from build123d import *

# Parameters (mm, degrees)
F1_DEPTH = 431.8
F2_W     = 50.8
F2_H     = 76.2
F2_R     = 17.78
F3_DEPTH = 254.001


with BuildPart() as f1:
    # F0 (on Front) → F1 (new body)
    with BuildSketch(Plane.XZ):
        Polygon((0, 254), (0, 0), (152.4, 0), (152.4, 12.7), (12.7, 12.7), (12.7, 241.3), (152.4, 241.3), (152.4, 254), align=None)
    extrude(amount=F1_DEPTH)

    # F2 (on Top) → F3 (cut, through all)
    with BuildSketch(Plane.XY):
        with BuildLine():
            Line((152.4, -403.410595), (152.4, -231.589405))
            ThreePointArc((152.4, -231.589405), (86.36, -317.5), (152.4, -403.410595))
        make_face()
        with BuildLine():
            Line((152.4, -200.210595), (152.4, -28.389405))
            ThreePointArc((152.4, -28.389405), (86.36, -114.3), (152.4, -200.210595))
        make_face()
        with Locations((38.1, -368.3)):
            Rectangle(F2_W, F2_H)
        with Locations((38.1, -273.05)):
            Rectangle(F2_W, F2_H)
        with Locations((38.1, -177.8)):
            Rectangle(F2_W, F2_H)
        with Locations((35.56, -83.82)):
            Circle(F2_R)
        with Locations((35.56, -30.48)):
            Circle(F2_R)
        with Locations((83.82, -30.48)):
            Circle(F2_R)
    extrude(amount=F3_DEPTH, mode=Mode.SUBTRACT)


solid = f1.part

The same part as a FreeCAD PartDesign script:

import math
import FreeCAD as App
import Part
import Sketcher
from FreeCAD import Vector
Q = App.Units.Quantity


def add_polygon(sketch, points):
    """Adds a closed chain of lines whose ends are joined by coincident constraints."""
    first, n = sketch.GeometryCount, len(points)
    for a, b in zip(points, points[1:] + points[:1]):
        sketch.addGeometry(Part.LineSegment(App.Vector(*a, 0), App.Vector(*b, 0)), False)
    for i in range(n):
        sketch.addConstraint(Sketcher.Constraint("Coincident", first + i, 2, first + (i + 1) % n, 1))

doc = App.newDocument("Part")
body = doc.addObject("PartDesign::Body", "Body")

sketch1 = doc.addObject("Sketcher::SketchObject", "Sketch")
body.addObject(sketch1)
sketch1.AttachmentSupport = (doc.XZ_Plane, [""])
sketch1.MapMode = "FlatFace"
add_polygon(sketch1, [(0, 254), (0, 0), (152.4, 0), (152.4, 12.7), (12.7, 12.7), (12.7, 241.3), (152.4, 241.3), (152.4, 254)])
sketch1.addConstraint(Sketcher.Constraint("Vertical", 0))
sketch1.addConstraint(Sketcher.Constraint("Horizontal", 1))
sketch1.addConstraint(Sketcher.Constraint("Vertical", 2))
sketch1.addConstraint(Sketcher.Constraint("Horizontal", 3))
sketch1.addConstraint(Sketcher.Constraint("Vertical", 4))
sketch1.addConstraint(Sketcher.Constraint("Horizontal", 5))
sketch1.addConstraint(Sketcher.Constraint("Vertical", 6))
sketch1.addConstraint(Sketcher.Constraint("Horizontal", 7))
sketch1.addConstraint(Sketcher.Constraint("Coincident", 0, 2, -1, 1))
sketch1.addConstraint(Sketcher.Constraint("Vertical", 2, 2, 5, 2))
sketch1.addConstraint(Sketcher.Constraint("Equal", 2, 6))
sketch1.addConstraint(Sketcher.Constraint("DistanceX", 1, 1, 1, 2, Q("6 in")))
sketch1.addConstraint(Sketcher.Constraint("DistanceY", 0, 2, 0, 1, Q("10 in")))
sketch1.addConstraint(Sketcher.Constraint("DistanceY", 4, 1, 4, 2, Q("9 in")))
sketch1.addConstraint(Sketcher.Constraint("DistanceX", 3, 2, 3, 1, Q("5.5 in")))
pad1 = doc.addObject("PartDesign::Pad", "Pad")
body.addObject(pad1)
pad1.Profile = sketch1
pad1.Length = Q("17 in")

sketch2 = doc.addObject("Sketcher::SketchObject", "Sketch001")
body.addObject(sketch2)
sketch2.AttachmentSupport = (doc.XY_Plane, [""])
sketch2.MapMode = "FlatFace"
sketch2.addGeometry(Part.LineSegment(Vector(152.4, -403.410595, 0), Vector(152.4, -231.589405, 0)), False)
sketch2.addGeometry(Part.ArcOfCircle(Part.Circle(Vector(175.259999, -317.5, 0), Vector(0, 0, 1), 88.899999), math.radians(104.900596), math.radians(255.099404)), False)
sketch2.addGeometry(Part.LineSegment(Vector(152.4, -200.210595, 0), Vector(152.4, -28.389405, 0)), False)
sketch2.addGeometry(Part.ArcOfCircle(Part.Circle(Vector(175.259999, -114.3, 0), Vector(0, 0, 1), 88.899999), math.radians(104.900596), math.radians(255.099404)), False)
add_polygon(sketch2, [(12.7, -330.2), (12.7, -406.4), (63.5, -406.4), (63.5, -330.2)])
add_polygon(sketch2, [(12.7, -234.95), (12.7, -311.15), (63.5, -311.15), (63.5, -234.95)])
add_polygon(sketch2, [(12.7, -139.7), (12.7, -215.9), (63.5, -215.9), (63.5, -139.7)])
sketch2.addGeometry(Part.Circle(Vector(35.56, -83.82, 0), Vector(0, 0, 1), 17.78), False)
sketch2.addGeometry(Part.Circle(Vector(35.56, -30.48, 0), Vector(0, 0, 1), 17.78), False)
sketch2.addGeometry(Part.Circle(Vector(83.82, -30.48, 0), Vector(0, 0, 1), 17.78), False)
sketch2.addConstraint(Sketcher.Constraint("Coincident", 0, 1, 1, 2))
sketch2.addConstraint(Sketcher.Constraint("Coincident", 1, 1, 0, 2))
sketch2.addConstraint(Sketcher.Constraint("Coincident", 2, 1, 3, 2))
sketch2.addConstraint(Sketcher.Constraint("Coincident", 3, 1, 2, 2))
sketch2.addConstraint(Sketcher.Constraint("Vertical", 0))
sketch2.addConstraint(Sketcher.Constraint("Vertical", 2))
sketch2.addConstraint(Sketcher.Constraint("Vertical", 4))
sketch2.addConstraint(Sketcher.Constraint("Horizontal", 5))
sketch2.addConstraint(Sketcher.Constraint("Vertical", 6))
sketch2.addConstraint(Sketcher.Constraint("Horizontal", 7))
sketch2.addConstraint(Sketcher.Constraint("Vertical", 8))
sketch2.addConstraint(Sketcher.Constraint("Horizontal", 9))
sketch2.addConstraint(Sketcher.Constraint("Vertical", 10))
sketch2.addConstraint(Sketcher.Constraint("Horizontal", 11))
sketch2.addConstraint(Sketcher.Constraint("Vertical", 12))
sketch2.addConstraint(Sketcher.Constraint("Horizontal", 13))
sketch2.addConstraint(Sketcher.Constraint("Vertical", 14))
sketch2.addConstraint(Sketcher.Constraint("Horizontal", 15))
sketch2.addConstraint(Sketcher.Constraint("Equal", 1, 3))
sketch2.addConstraint(Sketcher.Constraint("Equal", 16, 17))
sketch2.addConstraint(Sketcher.Constraint("Equal", 17, 18))
sketch2.addConstraint(Sketcher.Constraint("Horizontal", 17, 3, 18, 3))
sketch2.addConstraint(Sketcher.Constraint("Vertical", 1, 3, 3, 3))
sketch2.addConstraint(Sketcher.Constraint("Vertical", 16, 3, 17, 3))
sketch2.addConstraint(Sketcher.Constraint("Vertical", 1, 1, 2, 1))
sketch2.addConstraint(Sketcher.Constraint("Vertical", 7, 2, 8, 2))
sketch2.addConstraint(Sketcher.Constraint("Vertical", 6, 2, 9, 2))
sketch2.addConstraint(Sketcher.Constraint("Vertical", 11, 2, 12, 2))
sketch2.addConstraint(Sketcher.Constraint("Vertical", 10, 2, 13, 2))
sketch2.addConstraint(Sketcher.Constraint("Equal", 6, 8))
sketch2.addConstraint(Sketcher.Constraint("Equal", 10, 12))
sketch2.addConstraint(Sketcher.Constraint("Diameter", 16, Q("1.4 in")))
sketch2.addConstraint(Sketcher.Constraint("Radius", 1, Q("3.5 in")))
sketch2.addConstraint(Sketcher.Constraint("DistanceX", 5, 1, 5, 2, Q("2 in")))
sketch2.addConstraint(Sketcher.Constraint("DistanceY", 4, 2, 4, 1, Q("3 in")))
sketch2.addConstraint(Sketcher.Constraint("DistanceX", -1, 1, 0, 1, Q("6 in")))
sketch2.addConstraint(Sketcher.Constraint("DistanceY", 4, 2, -1, 1, Q("16 in")))
sketch2.addConstraint(Sketcher.Constraint("DistanceY", 1, 3, 3, 3, Q("8 in")))
sketch2.addConstraint(Sketcher.Constraint("DistanceX", -1, 1, 1, 3, Q("6.9 in")))
sketch2.addConstraint(Sketcher.Constraint("DistanceY", 1, 3, -1, 1, Q("12.5 in")))
sketch2.addConstraint(Sketcher.Constraint("DistanceX", -1, 1, 16, 3, Q("1.4 in")))
sketch2.addConstraint(Sketcher.Constraint("DistanceY", 16, 3, -1, 1, Q("3.3 in")))
sketch2.addConstraint(Sketcher.Constraint("DistanceY", 17, 3, -1, 1, Q("1.2 in")))
sketch2.addConstraint(Sketcher.Constraint("DistanceX", -1, 1, 18, 3, Q("3.3 in")))
sketch2.addConstraint(Sketcher.Constraint("DistanceX", -1, 1, 4, 2, Q("0.5 in")))
sketch2.addConstraint(Sketcher.Constraint("DistanceY", 12, 2, -1, 1, Q("8.5 in")))
sketch2.addConstraint(Sketcher.Constraint("DistanceY", 8, 2, -1, 1, Q("12.25 in")))
pocket1 = doc.addObject("PartDesign::Pocket", "Pocket")
body.addObject(pocket1)
pocket1.Profile = sketch2
pocket1.Type = "ThroughAll"
pocket1.Reversed = True

doc.recompute()
